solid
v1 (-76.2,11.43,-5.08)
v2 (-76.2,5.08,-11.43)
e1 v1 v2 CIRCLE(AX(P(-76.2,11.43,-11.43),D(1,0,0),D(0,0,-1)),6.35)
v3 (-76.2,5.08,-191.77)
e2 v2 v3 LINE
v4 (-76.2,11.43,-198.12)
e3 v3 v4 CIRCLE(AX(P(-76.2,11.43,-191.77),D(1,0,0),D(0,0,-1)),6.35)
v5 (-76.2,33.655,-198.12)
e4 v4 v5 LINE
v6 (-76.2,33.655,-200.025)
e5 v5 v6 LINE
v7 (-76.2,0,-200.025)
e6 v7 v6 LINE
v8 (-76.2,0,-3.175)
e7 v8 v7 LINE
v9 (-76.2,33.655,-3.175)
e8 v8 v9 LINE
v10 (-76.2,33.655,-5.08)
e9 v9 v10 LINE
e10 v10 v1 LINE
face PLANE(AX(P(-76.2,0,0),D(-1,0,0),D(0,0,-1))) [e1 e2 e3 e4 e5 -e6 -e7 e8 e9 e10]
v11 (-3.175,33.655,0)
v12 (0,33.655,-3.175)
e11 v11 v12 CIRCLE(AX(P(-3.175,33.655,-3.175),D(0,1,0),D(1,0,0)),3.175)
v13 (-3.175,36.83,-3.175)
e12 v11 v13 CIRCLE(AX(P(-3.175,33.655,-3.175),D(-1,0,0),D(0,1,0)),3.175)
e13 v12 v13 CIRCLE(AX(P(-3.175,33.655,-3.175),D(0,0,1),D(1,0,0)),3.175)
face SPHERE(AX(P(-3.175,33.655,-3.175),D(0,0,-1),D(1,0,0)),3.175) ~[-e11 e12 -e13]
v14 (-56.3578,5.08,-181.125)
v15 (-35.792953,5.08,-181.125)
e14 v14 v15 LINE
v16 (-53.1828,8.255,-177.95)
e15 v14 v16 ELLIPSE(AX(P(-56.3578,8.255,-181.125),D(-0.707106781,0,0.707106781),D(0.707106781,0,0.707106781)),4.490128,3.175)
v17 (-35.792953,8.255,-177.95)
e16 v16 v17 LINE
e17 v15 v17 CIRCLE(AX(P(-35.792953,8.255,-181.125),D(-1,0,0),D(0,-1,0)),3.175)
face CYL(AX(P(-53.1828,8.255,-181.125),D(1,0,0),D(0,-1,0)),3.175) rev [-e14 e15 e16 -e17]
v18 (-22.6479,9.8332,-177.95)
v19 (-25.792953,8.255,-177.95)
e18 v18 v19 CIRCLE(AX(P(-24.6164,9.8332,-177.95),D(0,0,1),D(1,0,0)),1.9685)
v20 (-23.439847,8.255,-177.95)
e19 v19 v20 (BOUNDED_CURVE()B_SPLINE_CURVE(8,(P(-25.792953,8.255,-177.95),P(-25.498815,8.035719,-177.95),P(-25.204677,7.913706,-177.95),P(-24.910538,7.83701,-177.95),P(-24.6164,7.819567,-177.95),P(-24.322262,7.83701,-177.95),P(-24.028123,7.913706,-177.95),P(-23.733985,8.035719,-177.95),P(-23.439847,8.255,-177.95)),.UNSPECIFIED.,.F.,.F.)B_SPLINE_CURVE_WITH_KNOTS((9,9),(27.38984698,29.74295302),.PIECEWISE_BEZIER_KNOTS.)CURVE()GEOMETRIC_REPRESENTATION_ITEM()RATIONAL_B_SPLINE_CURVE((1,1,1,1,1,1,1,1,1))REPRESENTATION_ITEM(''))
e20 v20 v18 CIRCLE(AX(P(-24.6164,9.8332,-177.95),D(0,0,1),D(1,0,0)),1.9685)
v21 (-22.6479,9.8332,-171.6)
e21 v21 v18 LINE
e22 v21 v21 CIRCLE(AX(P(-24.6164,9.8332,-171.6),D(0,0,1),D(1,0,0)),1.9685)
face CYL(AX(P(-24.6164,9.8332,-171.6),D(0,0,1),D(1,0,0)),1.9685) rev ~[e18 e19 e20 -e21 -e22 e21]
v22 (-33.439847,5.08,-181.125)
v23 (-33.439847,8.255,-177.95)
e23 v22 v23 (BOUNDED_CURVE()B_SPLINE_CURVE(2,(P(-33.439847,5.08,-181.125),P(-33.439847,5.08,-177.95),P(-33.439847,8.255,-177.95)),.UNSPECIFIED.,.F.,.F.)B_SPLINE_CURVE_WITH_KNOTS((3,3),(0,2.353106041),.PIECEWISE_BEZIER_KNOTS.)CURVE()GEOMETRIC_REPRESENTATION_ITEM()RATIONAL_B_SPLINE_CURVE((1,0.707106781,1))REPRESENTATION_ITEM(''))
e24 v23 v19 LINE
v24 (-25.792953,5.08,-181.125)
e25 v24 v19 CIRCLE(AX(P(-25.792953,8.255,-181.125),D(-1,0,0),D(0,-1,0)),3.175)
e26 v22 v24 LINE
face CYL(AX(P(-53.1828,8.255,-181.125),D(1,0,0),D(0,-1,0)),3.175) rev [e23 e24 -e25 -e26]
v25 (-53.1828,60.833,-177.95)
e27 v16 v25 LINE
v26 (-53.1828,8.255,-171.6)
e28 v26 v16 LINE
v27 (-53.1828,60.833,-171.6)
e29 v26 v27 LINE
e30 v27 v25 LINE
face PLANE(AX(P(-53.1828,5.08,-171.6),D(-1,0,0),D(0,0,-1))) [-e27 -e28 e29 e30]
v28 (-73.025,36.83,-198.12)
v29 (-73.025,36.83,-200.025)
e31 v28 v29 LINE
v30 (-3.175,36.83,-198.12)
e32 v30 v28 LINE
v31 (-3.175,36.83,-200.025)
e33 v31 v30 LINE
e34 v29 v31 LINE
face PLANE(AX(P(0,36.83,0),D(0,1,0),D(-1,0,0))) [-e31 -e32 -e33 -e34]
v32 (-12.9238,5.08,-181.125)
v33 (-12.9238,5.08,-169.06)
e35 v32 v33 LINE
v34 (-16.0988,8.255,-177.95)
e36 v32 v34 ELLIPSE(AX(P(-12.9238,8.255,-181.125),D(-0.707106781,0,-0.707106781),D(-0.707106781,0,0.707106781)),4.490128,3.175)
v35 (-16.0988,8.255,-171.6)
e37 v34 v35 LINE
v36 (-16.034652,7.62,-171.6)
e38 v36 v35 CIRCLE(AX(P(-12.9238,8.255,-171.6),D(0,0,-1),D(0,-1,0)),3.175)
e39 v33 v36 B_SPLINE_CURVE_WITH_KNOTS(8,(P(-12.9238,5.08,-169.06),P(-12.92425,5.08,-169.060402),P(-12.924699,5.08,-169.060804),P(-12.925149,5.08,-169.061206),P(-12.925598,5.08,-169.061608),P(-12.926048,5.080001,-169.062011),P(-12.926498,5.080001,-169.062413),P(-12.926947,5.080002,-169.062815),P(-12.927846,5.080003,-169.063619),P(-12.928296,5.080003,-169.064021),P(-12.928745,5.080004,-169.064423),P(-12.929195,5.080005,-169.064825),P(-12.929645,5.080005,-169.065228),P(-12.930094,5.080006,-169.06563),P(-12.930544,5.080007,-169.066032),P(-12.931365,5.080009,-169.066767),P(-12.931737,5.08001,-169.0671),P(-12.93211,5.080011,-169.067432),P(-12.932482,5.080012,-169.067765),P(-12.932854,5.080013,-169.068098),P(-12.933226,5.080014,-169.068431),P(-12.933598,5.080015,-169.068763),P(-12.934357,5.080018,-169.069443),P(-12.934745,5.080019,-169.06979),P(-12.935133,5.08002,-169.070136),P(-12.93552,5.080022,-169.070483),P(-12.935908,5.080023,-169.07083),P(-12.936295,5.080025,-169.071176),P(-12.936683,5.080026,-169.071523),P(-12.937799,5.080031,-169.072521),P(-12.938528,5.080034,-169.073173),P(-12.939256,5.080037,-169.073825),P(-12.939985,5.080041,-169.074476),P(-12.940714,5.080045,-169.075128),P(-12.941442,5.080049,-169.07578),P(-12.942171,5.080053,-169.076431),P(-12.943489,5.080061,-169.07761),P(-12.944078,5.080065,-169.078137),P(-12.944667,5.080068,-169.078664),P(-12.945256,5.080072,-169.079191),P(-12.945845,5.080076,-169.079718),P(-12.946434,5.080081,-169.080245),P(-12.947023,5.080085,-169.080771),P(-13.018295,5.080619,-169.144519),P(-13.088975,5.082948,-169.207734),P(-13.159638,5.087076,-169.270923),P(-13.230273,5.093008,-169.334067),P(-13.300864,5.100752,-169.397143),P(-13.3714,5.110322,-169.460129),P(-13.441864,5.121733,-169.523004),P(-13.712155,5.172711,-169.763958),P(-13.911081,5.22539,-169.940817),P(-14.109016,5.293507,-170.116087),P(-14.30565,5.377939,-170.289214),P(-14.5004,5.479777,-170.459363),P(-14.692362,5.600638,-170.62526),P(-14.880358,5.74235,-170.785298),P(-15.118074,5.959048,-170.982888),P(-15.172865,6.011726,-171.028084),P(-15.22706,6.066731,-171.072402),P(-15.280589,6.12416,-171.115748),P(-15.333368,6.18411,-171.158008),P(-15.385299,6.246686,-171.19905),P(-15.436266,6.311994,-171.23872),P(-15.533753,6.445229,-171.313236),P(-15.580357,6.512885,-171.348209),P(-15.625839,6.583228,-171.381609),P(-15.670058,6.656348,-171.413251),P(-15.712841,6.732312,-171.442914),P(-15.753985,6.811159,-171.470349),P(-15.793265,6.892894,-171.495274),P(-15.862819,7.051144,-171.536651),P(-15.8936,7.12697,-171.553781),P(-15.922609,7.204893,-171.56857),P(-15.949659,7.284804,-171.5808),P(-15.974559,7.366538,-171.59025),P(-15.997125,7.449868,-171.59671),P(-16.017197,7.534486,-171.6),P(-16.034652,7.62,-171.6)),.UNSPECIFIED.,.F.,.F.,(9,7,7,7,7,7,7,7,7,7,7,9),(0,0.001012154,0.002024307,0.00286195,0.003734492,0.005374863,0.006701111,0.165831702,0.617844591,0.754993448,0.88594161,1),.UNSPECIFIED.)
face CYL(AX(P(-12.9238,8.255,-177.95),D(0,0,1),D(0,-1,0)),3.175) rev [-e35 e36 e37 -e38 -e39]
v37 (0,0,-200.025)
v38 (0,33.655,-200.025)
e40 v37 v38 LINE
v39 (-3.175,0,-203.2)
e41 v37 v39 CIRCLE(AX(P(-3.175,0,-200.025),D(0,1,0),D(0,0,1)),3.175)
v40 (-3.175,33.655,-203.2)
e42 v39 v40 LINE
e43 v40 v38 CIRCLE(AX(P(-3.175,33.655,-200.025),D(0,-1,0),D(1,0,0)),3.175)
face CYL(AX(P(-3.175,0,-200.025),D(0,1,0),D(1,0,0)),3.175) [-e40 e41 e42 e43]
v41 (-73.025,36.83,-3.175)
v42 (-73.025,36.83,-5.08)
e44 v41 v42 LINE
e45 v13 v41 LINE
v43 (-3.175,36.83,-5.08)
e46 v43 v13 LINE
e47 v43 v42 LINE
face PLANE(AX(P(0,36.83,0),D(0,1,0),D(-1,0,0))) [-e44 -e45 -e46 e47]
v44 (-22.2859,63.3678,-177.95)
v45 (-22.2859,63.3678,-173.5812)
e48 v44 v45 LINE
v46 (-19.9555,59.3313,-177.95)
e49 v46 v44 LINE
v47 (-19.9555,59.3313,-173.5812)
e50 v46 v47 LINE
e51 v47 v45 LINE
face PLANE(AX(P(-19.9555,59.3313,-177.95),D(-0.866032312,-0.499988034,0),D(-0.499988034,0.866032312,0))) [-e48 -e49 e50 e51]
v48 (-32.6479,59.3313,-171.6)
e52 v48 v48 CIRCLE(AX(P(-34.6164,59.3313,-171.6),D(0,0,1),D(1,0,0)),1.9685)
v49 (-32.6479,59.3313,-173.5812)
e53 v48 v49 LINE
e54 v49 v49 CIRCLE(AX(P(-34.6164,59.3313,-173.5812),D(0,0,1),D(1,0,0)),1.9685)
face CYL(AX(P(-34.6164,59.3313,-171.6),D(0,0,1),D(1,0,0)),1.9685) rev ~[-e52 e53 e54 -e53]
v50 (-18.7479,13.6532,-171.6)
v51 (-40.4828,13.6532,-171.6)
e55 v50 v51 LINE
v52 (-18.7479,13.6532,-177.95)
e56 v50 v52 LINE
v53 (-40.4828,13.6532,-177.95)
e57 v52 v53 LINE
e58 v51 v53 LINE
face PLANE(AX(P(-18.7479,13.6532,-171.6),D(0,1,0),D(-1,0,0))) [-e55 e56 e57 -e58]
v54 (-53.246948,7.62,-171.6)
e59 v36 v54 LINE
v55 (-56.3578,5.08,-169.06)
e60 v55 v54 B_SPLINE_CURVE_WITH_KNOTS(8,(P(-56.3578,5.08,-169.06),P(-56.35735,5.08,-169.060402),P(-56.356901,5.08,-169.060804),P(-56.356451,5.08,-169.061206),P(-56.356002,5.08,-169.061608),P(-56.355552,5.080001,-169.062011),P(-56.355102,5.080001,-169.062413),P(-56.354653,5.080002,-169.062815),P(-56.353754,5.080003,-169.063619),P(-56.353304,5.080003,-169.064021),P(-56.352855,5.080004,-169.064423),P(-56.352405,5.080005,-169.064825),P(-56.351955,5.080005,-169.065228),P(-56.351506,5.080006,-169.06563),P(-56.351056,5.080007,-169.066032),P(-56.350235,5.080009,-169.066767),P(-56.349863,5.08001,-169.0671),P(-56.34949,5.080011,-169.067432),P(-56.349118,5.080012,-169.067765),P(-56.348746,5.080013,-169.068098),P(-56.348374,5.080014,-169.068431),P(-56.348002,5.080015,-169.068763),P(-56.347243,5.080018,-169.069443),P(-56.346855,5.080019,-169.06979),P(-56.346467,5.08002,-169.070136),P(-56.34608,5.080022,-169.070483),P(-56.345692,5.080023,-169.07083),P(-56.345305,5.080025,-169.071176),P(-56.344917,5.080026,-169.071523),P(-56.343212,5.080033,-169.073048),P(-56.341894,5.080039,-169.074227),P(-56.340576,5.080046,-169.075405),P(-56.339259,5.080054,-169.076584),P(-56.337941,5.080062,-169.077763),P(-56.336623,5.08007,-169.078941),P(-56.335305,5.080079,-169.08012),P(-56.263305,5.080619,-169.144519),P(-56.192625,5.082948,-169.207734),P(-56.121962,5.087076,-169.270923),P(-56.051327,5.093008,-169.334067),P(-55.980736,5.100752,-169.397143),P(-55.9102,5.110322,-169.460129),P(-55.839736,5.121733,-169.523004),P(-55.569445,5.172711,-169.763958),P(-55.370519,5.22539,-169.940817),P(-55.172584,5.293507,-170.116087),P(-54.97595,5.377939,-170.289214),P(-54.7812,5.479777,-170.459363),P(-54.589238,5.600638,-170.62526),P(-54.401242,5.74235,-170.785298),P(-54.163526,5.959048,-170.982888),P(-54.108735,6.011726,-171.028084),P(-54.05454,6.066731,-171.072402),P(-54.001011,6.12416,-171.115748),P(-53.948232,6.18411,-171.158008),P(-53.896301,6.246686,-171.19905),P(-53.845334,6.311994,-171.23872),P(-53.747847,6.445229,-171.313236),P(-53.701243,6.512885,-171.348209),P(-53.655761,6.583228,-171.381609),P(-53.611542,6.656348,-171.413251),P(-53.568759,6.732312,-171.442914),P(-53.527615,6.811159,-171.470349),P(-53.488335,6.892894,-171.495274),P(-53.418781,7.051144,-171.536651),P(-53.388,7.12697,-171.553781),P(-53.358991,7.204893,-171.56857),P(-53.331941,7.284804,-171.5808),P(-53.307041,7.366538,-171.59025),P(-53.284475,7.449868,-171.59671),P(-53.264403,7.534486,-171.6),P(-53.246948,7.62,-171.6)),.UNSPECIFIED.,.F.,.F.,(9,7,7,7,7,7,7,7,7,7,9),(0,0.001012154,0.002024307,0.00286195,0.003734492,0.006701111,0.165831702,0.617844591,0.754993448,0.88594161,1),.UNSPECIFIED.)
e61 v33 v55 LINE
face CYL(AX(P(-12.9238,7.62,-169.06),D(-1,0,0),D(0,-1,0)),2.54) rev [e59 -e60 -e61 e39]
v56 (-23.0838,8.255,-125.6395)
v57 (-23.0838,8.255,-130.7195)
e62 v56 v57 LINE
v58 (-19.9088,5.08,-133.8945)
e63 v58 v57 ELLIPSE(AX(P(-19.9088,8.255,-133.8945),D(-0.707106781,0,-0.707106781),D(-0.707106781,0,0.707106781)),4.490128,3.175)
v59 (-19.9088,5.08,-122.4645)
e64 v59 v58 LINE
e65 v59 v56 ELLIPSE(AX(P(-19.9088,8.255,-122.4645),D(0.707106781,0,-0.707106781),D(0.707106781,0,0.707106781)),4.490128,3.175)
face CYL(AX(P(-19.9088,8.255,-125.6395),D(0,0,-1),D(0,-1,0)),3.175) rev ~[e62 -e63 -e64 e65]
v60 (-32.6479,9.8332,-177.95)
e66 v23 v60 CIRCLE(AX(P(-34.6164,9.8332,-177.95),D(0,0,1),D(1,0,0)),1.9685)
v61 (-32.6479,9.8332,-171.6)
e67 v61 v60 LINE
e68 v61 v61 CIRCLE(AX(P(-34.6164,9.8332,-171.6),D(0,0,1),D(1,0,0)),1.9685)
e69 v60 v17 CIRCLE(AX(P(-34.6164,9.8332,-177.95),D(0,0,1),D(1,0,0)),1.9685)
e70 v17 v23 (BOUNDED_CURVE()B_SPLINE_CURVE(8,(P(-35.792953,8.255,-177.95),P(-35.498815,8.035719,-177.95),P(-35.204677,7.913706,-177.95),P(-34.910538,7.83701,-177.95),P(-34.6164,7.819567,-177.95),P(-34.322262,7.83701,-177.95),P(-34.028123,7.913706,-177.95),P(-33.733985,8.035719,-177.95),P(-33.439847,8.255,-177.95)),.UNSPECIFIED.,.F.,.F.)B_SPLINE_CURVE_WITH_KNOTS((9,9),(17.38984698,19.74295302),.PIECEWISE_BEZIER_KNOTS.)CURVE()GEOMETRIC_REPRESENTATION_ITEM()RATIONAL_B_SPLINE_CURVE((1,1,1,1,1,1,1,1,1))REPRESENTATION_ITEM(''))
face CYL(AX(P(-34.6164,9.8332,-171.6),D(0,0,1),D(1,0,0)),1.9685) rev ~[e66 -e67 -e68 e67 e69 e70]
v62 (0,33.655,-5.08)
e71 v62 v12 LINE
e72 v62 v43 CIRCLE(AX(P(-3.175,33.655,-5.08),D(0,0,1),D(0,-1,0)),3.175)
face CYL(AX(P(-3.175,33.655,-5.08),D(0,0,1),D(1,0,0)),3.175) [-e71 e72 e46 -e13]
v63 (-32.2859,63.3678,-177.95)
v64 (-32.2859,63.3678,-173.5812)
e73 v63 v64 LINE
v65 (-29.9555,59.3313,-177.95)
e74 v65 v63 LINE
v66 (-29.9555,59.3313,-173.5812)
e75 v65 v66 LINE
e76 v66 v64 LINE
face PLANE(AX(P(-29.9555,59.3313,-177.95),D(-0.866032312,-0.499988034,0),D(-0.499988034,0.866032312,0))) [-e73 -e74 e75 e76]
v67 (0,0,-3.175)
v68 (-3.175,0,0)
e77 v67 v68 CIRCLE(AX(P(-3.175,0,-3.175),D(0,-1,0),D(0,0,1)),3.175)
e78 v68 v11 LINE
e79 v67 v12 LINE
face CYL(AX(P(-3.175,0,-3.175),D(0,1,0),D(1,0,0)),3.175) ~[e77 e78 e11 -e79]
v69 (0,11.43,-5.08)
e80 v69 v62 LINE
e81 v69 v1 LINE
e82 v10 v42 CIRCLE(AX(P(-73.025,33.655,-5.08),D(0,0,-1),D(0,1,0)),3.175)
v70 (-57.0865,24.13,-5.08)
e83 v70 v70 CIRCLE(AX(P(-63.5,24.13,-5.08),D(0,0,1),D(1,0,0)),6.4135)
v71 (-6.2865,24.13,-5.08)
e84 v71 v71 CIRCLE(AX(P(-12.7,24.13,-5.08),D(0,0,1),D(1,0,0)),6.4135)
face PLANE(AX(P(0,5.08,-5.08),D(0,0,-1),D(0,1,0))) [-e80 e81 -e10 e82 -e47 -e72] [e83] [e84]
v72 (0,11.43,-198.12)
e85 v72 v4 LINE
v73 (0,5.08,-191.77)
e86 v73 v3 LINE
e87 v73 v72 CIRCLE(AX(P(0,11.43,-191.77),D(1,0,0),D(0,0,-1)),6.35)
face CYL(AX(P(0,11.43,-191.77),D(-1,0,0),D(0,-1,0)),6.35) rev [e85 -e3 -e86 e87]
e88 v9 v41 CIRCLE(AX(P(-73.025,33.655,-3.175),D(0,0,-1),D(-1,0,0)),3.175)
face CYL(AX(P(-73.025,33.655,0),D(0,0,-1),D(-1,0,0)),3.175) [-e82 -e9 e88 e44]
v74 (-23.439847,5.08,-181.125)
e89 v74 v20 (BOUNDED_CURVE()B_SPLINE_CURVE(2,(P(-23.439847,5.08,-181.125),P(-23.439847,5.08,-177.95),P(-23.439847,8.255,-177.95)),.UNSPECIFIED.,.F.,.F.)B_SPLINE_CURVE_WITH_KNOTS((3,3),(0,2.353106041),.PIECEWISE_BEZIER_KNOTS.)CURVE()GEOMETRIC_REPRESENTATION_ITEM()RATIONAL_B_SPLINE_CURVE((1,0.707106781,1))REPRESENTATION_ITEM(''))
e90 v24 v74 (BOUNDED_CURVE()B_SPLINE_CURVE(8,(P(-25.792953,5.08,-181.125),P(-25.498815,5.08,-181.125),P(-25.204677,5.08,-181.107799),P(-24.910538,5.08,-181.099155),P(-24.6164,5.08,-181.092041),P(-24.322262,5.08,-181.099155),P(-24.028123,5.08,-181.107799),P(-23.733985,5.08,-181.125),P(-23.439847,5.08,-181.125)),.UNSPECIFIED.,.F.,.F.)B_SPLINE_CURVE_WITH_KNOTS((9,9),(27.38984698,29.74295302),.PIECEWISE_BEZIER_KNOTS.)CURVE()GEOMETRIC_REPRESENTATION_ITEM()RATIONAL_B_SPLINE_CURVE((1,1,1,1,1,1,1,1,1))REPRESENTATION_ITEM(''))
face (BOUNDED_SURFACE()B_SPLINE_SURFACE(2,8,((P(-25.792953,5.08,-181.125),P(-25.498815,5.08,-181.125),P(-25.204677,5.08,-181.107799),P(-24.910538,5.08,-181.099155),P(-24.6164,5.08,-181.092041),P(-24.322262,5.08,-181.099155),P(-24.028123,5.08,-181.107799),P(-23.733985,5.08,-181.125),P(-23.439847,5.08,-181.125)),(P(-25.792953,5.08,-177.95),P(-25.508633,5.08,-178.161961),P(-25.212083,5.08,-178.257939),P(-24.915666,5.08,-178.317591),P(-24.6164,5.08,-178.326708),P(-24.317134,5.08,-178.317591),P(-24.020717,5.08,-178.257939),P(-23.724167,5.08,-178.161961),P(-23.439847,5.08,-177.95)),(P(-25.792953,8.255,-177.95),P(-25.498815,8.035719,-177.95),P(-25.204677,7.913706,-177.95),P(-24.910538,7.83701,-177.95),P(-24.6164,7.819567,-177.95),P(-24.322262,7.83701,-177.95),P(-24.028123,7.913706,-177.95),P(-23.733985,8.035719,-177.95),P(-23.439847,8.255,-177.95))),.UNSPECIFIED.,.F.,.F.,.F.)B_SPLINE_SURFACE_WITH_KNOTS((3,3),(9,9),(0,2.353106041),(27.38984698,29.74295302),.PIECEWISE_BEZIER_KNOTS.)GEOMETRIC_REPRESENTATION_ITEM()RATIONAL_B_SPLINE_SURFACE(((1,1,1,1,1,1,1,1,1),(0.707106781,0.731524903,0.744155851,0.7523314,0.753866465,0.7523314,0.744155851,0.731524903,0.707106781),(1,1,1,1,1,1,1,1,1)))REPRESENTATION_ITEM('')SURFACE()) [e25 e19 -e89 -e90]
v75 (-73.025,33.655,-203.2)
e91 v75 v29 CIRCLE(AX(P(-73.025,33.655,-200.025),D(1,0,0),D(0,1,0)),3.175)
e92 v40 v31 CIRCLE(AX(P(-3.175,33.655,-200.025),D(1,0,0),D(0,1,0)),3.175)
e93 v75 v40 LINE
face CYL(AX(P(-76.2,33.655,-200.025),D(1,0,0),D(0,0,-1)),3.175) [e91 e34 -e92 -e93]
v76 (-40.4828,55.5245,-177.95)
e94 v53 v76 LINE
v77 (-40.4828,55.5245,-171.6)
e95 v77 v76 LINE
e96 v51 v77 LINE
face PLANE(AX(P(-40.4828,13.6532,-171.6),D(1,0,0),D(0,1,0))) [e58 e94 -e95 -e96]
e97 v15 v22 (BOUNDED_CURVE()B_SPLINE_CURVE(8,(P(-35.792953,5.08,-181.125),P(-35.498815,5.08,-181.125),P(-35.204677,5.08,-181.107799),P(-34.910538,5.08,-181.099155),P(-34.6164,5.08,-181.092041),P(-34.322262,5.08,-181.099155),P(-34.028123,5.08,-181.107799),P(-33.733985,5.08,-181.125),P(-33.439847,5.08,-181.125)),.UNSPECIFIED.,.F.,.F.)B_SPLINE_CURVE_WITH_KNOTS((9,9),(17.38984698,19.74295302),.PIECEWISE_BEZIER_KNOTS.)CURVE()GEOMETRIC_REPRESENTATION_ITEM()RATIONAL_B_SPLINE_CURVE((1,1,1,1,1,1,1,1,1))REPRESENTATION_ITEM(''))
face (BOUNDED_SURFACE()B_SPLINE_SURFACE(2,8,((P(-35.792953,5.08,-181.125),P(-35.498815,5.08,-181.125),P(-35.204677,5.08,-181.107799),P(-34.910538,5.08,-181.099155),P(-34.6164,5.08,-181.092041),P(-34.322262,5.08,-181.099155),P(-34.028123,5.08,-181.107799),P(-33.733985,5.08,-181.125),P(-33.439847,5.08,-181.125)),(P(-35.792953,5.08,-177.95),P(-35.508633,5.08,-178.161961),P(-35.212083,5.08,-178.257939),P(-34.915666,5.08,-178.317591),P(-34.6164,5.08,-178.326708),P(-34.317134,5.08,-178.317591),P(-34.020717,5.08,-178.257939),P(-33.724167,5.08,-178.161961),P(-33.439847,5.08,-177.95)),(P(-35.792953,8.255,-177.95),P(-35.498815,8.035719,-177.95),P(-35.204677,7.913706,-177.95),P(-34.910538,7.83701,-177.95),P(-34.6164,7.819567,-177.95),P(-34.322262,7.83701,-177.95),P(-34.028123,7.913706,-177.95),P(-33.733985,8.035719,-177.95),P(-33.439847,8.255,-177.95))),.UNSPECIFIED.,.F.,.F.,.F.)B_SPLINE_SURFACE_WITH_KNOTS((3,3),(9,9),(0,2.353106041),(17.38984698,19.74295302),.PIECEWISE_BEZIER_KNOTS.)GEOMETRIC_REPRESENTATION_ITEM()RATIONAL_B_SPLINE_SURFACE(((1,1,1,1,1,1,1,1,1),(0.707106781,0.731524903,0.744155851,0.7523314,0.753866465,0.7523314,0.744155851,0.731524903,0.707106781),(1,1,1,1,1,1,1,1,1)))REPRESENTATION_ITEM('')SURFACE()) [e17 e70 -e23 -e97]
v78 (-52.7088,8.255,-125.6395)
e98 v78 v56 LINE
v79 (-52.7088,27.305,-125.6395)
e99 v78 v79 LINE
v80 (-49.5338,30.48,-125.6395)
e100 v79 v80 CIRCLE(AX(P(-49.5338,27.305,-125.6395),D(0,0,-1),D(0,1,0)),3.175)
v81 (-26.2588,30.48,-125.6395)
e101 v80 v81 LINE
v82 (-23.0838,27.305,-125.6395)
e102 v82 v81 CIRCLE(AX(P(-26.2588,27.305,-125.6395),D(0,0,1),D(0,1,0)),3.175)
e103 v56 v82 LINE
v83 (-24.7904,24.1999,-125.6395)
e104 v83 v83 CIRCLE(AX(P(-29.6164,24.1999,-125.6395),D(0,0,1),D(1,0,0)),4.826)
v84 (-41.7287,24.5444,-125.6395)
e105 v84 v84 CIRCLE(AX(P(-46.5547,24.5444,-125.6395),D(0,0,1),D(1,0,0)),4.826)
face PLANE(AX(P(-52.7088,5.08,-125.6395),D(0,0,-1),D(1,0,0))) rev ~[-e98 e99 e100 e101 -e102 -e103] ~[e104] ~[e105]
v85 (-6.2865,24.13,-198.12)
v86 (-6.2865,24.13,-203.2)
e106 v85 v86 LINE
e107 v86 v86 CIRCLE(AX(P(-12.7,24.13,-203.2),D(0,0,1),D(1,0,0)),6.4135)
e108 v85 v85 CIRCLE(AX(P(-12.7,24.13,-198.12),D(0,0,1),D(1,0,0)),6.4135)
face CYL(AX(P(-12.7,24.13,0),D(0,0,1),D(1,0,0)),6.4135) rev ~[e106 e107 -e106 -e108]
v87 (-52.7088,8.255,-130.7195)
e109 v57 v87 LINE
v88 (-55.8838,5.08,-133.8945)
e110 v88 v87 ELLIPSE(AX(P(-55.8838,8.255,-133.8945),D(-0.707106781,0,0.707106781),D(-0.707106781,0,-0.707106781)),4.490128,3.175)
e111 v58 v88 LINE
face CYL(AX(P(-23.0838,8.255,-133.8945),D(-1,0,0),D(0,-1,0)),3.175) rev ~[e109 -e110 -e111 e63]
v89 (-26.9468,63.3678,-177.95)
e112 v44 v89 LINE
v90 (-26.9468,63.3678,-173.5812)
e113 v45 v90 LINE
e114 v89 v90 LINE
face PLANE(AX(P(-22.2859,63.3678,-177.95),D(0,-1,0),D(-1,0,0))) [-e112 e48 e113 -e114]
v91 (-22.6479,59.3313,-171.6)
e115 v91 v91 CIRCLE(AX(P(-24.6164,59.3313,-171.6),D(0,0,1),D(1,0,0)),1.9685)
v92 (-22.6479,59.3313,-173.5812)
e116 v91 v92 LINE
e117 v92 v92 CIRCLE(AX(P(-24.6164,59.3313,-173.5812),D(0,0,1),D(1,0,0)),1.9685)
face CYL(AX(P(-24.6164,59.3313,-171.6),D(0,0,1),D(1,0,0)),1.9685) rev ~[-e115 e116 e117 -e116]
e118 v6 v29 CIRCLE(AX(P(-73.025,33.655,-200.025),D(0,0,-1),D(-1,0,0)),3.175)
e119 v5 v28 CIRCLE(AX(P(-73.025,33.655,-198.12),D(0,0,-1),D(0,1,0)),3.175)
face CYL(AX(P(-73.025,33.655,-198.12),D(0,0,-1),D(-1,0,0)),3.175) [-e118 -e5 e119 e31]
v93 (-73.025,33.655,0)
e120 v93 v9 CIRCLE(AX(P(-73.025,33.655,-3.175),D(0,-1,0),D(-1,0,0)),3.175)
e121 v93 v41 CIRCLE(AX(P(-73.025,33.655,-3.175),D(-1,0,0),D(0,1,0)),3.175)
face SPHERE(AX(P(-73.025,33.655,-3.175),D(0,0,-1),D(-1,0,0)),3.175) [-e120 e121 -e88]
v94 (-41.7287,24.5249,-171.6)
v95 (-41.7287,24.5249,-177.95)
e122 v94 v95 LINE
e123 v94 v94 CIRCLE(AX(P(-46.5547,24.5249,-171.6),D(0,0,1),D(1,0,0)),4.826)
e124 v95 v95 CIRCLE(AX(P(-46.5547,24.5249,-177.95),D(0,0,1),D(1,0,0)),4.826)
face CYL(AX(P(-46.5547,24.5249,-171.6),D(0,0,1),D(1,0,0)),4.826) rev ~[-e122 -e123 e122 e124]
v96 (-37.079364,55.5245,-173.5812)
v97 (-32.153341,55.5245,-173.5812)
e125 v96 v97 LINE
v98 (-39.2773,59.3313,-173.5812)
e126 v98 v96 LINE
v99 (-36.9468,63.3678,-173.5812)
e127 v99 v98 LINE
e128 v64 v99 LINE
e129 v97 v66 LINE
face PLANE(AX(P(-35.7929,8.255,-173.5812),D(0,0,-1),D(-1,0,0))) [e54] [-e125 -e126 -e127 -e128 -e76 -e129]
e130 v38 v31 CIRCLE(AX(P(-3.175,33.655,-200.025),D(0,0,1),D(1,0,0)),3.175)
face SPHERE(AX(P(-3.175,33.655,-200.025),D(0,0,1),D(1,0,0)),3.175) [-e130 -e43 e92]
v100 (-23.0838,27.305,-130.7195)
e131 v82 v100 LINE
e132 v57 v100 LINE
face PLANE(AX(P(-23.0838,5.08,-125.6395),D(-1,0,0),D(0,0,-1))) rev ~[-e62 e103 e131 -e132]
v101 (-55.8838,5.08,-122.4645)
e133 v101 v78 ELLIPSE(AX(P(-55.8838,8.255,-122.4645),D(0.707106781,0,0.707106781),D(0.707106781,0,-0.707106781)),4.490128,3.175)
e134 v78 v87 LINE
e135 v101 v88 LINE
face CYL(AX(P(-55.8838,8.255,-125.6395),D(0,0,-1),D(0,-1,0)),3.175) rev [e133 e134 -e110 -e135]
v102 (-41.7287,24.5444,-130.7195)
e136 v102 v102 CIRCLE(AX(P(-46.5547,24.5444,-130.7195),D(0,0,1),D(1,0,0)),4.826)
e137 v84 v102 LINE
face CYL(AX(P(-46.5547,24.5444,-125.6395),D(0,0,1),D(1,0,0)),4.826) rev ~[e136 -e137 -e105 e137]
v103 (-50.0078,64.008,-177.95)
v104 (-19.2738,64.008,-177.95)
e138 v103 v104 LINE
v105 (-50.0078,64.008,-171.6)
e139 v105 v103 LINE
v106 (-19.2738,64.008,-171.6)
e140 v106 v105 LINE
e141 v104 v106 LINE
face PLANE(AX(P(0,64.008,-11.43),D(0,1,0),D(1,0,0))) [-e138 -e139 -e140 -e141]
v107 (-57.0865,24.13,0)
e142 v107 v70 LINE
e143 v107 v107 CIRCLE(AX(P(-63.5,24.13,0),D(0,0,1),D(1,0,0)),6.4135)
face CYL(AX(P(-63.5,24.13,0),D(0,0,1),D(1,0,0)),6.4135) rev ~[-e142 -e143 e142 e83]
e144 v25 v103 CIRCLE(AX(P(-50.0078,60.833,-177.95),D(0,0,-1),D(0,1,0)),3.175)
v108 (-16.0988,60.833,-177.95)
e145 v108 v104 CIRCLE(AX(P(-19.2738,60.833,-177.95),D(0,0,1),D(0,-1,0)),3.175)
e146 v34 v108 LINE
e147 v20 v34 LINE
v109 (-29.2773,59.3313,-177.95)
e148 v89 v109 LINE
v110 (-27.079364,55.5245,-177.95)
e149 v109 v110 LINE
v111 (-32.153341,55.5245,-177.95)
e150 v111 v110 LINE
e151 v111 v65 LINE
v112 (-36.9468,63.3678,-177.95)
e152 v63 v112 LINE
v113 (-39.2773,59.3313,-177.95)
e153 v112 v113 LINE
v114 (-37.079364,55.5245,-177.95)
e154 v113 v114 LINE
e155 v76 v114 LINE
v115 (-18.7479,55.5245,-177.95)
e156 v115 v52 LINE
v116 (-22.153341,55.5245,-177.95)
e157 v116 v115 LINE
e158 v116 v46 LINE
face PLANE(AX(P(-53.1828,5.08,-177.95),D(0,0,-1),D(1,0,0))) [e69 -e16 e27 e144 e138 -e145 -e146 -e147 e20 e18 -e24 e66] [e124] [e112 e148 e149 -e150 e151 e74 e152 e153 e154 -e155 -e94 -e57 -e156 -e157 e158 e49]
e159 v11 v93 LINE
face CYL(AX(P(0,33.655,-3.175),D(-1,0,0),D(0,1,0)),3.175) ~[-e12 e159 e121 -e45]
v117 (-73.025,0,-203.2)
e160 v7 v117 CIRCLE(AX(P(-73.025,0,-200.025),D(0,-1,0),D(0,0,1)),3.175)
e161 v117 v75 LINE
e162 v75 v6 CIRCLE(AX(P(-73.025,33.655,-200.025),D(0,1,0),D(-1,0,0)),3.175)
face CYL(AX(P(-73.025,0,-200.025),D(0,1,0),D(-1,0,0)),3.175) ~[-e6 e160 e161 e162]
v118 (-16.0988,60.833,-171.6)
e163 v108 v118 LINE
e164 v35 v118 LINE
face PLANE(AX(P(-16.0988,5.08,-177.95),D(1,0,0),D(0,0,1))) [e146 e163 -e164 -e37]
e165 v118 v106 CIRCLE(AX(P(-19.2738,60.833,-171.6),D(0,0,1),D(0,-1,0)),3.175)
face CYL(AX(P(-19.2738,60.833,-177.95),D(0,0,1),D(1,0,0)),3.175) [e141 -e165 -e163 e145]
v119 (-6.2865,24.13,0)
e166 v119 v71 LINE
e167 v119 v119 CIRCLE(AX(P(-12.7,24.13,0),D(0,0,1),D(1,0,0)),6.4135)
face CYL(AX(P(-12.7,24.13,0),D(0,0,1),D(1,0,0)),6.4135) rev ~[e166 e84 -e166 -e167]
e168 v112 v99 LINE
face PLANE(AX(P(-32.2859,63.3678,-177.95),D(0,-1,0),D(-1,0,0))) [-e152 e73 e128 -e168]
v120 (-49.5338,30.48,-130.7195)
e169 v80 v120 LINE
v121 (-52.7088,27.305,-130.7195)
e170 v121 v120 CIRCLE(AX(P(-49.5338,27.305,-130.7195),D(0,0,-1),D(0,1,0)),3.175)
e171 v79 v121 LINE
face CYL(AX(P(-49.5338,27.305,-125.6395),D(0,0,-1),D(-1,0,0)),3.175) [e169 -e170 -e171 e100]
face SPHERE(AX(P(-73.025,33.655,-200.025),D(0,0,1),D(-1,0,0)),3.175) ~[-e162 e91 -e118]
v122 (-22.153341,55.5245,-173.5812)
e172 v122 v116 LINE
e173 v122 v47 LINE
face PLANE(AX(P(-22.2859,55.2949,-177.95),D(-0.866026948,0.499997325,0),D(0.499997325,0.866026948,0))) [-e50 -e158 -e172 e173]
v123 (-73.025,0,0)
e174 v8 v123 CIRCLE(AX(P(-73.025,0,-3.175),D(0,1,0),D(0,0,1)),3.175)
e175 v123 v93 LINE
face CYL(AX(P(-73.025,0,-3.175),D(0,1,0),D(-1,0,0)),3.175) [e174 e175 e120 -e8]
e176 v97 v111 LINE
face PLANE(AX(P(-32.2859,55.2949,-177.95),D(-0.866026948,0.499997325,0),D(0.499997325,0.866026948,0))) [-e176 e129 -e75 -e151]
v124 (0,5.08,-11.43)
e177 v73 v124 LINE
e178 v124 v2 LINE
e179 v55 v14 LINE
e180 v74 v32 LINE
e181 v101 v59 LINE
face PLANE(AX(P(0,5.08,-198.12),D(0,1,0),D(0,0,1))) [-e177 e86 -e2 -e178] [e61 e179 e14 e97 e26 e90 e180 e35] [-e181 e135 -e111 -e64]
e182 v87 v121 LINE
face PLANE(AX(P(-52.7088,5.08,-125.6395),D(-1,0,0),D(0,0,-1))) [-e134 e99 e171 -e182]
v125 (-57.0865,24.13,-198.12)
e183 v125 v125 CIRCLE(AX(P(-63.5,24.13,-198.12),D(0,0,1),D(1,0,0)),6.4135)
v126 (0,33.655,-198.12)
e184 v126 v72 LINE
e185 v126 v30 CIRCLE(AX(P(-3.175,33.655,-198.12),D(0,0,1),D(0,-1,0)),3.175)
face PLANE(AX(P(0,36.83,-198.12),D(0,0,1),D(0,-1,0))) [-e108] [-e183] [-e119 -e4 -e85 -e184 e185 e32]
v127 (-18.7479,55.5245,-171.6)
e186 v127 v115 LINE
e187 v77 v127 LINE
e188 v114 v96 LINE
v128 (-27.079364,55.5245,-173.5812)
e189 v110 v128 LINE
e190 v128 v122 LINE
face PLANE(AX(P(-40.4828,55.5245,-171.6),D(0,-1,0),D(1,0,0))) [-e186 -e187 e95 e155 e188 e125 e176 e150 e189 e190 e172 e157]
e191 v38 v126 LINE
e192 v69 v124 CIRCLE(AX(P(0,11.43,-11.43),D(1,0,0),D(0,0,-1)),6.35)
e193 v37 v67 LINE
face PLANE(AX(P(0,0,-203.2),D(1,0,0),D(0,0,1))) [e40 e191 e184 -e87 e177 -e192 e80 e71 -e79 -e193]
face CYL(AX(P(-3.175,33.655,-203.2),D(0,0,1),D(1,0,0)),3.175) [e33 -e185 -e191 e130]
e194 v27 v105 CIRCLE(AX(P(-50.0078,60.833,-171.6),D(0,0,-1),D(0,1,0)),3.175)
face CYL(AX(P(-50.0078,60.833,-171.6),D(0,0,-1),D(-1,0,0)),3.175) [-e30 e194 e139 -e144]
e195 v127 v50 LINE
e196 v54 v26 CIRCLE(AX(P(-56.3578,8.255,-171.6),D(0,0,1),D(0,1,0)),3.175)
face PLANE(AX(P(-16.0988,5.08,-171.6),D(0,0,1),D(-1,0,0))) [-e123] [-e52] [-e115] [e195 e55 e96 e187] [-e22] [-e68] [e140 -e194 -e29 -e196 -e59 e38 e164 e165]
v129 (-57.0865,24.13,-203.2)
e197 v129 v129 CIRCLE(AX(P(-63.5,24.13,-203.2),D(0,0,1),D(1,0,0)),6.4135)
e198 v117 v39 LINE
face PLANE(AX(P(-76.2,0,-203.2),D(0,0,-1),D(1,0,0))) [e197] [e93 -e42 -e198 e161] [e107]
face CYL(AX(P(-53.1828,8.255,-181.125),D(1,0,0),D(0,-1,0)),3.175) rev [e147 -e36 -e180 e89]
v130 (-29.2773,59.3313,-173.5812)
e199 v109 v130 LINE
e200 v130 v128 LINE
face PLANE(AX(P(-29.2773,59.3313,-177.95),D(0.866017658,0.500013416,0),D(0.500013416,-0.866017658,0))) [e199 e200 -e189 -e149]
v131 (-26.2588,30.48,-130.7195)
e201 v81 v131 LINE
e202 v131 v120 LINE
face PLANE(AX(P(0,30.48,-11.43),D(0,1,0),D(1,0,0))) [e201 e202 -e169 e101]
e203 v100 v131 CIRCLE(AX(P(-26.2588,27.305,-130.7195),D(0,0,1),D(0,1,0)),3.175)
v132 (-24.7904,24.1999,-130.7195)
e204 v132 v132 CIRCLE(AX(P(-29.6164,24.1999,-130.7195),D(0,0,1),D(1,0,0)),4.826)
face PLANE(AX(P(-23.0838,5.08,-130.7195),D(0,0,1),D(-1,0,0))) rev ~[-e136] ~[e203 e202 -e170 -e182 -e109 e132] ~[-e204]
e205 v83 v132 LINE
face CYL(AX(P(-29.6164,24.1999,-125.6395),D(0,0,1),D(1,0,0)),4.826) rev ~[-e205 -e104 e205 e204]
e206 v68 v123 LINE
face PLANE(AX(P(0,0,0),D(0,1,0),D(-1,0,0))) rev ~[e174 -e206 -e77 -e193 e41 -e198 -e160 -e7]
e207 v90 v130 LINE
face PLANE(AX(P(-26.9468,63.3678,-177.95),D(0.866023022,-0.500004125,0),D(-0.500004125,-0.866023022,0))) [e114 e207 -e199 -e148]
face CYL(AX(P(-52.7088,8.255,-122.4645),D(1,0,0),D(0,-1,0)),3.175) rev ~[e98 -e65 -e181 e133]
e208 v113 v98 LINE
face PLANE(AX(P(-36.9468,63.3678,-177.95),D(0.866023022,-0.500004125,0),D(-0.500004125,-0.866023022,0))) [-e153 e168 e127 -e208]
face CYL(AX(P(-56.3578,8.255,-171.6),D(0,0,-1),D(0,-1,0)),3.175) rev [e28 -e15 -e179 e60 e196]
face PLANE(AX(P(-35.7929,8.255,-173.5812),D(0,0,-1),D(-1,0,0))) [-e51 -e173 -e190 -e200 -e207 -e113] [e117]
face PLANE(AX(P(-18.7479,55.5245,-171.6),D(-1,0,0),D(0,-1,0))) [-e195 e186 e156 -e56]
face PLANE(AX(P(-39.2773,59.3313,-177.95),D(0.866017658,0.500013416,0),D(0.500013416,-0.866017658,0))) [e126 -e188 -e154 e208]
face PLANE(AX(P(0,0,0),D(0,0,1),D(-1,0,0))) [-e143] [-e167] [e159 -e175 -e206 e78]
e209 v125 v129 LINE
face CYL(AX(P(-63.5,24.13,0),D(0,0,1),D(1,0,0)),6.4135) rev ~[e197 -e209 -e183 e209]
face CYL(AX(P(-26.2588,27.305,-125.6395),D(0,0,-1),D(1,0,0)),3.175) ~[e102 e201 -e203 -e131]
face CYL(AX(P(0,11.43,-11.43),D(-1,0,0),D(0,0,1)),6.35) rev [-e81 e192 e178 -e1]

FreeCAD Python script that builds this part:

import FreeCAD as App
import Part
import Sketcher
Q = App.Units.Quantity


def edges_at(feature, points):
    """Names of the edges that pass closest to the given points."""
    edges = feature.Shape.Edges
    near = lambda p: min(range(len(edges)), key=lambda i: edges[i].distToShape(Part.Vertex(*p))[0])
    return sorted({f"Edge{near(p) + 1}" for p in points})

doc = App.newDocument("Part")
body = doc.addObject("PartDesign::Body", "Body")

# Sketch on XZ plane
sketch1 = body.newObject("Sketcher::SketchObject", "Sketch")
sketch1.AttachmentSupport = (doc.getObject("XZ_Plane"), [""])
sketch1.MapMode = "FlatFace"
sketch1.addGeometry(Part.LineSegment(App.Vector(-76, 0, 0), App.Vector(0, 0, 0)), False)
sketch1.addGeometry(Part.LineSegment(App.Vector(0, 0, 0), App.Vector(0, -203, 0)), False)
sketch1.addGeometry(Part.LineSegment(App.Vector(0, -203, 0), App.Vector(-76, -203, 0)), False)
sketch1.addGeometry(Part.LineSegment(App.Vector(-76, -203, 0), App.Vector(-76, 0, 0)), False)
sketch1.addConstraint(Sketcher.Constraint("Coincident", 0, 2, 1, 1))
sketch1.addConstraint(Sketcher.Constraint("Coincident", 1, 2, 2, 1))
sketch1.addConstraint(Sketcher.Constraint("Coincident", 2, 2, 3, 1))
sketch1.addConstraint(Sketcher.Constraint("Coincident", 3, 2, 0, 1))
sketch1.addConstraint(Sketcher.Constraint("Horizontal", 0))
sketch1.addConstraint(Sketcher.Constraint("Vertical", 1))
sketch1.addConstraint(Sketcher.Constraint("Horizontal", 2))
sketch1.addConstraint(Sketcher.Constraint("Vertical", 3))
sketch1.addConstraint(Sketcher.Constraint("Coincident", 0, 2, -1, 1))
sketch1.addConstraint(Sketcher.Constraint("DistanceX", 0, 1, 0, 2, Q("3 in")))
sketch1.addConstraint(Sketcher.Constraint("DistanceY", 1, 2, 1, 1, Q("8 in")))
pad1 = body.newObject("PartDesign::Pad", "Pad")
pad1.Profile = sketch1
pad1.Length = Q("1.45 in")
pad1.Reversed = True

# Sketch on XY plane
sketch2 = body.newObject("Sketcher::SketchObject", "Sketch001")
sketch2.AttachmentSupport = (doc.getObject("XY_Plane"), [""])
sketch2.MapMode = "FlatFace"
sketch2.addGeometry(Part.Circle(App.Vector(-13, 24, 0), App.Vector(0, 0, 1), 6), False)
sketch2.addGeometry(Part.Circle(App.Vector(-64, 24, 0), App.Vector(0, 0, 1), 6), False)
sketch2.addConstraint(Sketcher.Constraint("Equal", 0, 1))
sketch2.addConstraint(Sketcher.Constraint("Horizontal", 0, 3, 1, 3))
sketch2.addConstraint(Sketcher.Constraint("Diameter", 0, Q("0.505 in")))
sketch2.addConstraint(Sketcher.Constraint("DistanceX", 1, 3, 0, 3, Q("2 in")))
sketch2.addConstraint(Sketcher.Constraint("DistanceX", 0, 3, -1, 1, Q("0.5 in")))
sketch2.addConstraint(Sketcher.Constraint("DistanceY", -1, 1, 0, 3, Q("0.95 in")))
pocket1 = body.newObject("PartDesign::Pocket", "Pocket")
pocket1.Profile = sketch2
pocket1.Type = "ThroughAll"

# Sketch on YZ plane
sketch3 = body.newObject("Sketcher::SketchObject", "Sketch002")
sketch3.AttachmentSupport = (doc.getObject("YZ_Plane"), [""])
sketch3.MapMode = "FlatFace"
sketch3.addGeometry(Part.LineSegment(App.Vector(37, -198, 0), App.Vector(37, -5, 0)), False)
sketch3.addGeometry(Part.LineSegment(App.Vector(37, -5, 0), App.Vector(5, -5, 0)), False)
sketch3.addGeometry(Part.LineSegment(App.Vector(5, -5, 0), App.Vector(5, -198, 0)), False)
sketch3.addGeometry(Part.LineSegment(App.Vector(5, -198, 0), App.Vector(37, -198, 0)), False)
sketch3.addConstraint(Sketcher.Constraint("Coincident", 0, 2, 1, 1))
sketch3.addConstraint(Sketcher.Constraint("Coincident", 1, 2, 2, 1))
sketch3.addConstraint(Sketcher.Constraint("Coincident", 2, 2, 3, 1))
sketch3.addConstraint(Sketcher.Constraint("Coincident", 3, 2, 0, 1))
sketch3.addConstraint(Sketcher.Constraint("Vertical", 0))
sketch3.addConstraint(Sketcher.Constraint("Horizontal", 1))
sketch3.addConstraint(Sketcher.Constraint("Vertical", 2))
sketch3.addConstraint(Sketcher.Constraint("Horizontal", 3))
sketch3.addConstraint(Sketcher.Constraint("DistanceY", 0, 2, -1, 1, Q("0.2 in")))
sketch3.addConstraint(Sketcher.Constraint("DistanceX", -1, 1, 1, 2, Q("0.2 in")))
sketch3.addConstraint(Sketcher.Constraint("DistanceY", 0, 1, 0, 2, Q("7.6 in")))
sketch3.addConstraint(Sketcher.Constraint("DistanceX", 1, 2, 1, 1, Q("1.25 in")))
pocket2 = body.newObject("PartDesign::Pocket", "Pocket001")
pocket2.Profile = sketch3
pocket2.Type = "ThroughAll"
doc.recompute()

fillet = body.newObject("PartDesign::Fillet", "Fillet")
fillet.Base = (pocket2, edges_at(pocket2, [(-38.1, 5.08, -198.12), (-38.1, 5.08, -5.08)]))
fillet.Radius = Q("0.25 in")

# Sketch on XZ plane
sketch4 = body.newObject("Sketcher::SketchObject", "Sketch003")
sketch4.AttachmentSupport = (doc.getObject("XZ_Plane"), [""])
sketch4.MapMode = "FlatFace"
sketch4.AttachmentOffset = App.Placement(App.Vector(0, 0, -0.2 * 25.4), App.Rotation())
sketch4.addGeometry(Part.LineSegment(App.Vector(-23, -126, 0), App.Vector(-23, -131, 0)), False)
sketch4.addGeometry(Part.LineSegment(App.Vector(-23, -131, 0), App.Vector(-53, -131, 0)), False)
sketch4.addGeometry(Part.LineSegment(App.Vector(-53, -131, 0), App.Vector(-53, -126, 0)), False)
sketch4.addGeometry(Part.LineSegment(App.Vector(-53, -126, 0), App.Vector(-23, -126, 0)), False)
sketch4.addConstraint(Sketcher.Constraint("Coincident", 0, 2, 1, 1))
sketch4.addConstraint(Sketcher.Constraint("Coincident", 1, 2, 2, 1))
sketch4.addConstraint(Sketcher.Constraint("Coincident", 2, 2, 3, 1))
sketch4.addConstraint(Sketcher.Constraint("Coincident", 3, 2, 0, 1))
sketch4.addConstraint(Sketcher.Constraint("Vertical", 0))
sketch4.addConstraint(Sketcher.Constraint("Horizontal", 1))
sketch4.addConstraint(Sketcher.Constraint("Vertical", 2))
sketch4.addConstraint(Sketcher.Constraint("Horizontal", 3))
sketch4.addConstraint(Sketcher.Constraint("DistanceY", 0, 2, 0, 1, Q("0.2 in")))
sketch4.addConstraint(Sketcher.Constraint("DistanceX", 1, 2, 1, 1, 29.625))
sketch4.addConstraint(Sketcher.Constraint("DistanceX", 0, 2, -1, 1, Q("0.9088 in")))
sketch4.addConstraint(Sketcher.Constraint("DistanceY", 0, 2, -1, 1, 130.7195))
pad2 = body.newObject("PartDesign::Pad", "Pad001")
pad2.Profile = sketch4
pad2.Length = Q("1 in")
pad2.Reversed = True

# Sketch on XY plane
sketch5 = body.newObject("Sketcher::SketchObject", "Sketch004")
sketch5.AttachmentSupport = (doc.getObject("XY_Plane"), [""])
sketch5.MapMode = "FlatFace"
sketch5.AttachmentOffset = App.Placement(App.Vector(0, 0, -125.6395), App.Rotation())
sketch5.addGeometry(Part.Circle(App.Vector(-46.6, 24.5, 0), App.Vector(0, 0, 1), 4.8), False)
sketch5.addGeometry(Part.Circle(App.Vector(-29.6, 24.2, 0), App.Vector(0, 0, 1), 4.8), False)
sketch5.addConstraint(Sketcher.Constraint("Equal", 0, 1))
sketch5.addConstraint(Sketcher.Constraint("Diameter", 0, Q("0.38 in")))
sketch5.addConstraint(Sketcher.Constraint("DistanceX", 1, 3, -1, 1, Q("1.166 in")))
sketch5.addConstraint(Sketcher.Constraint("DistanceX", 0, 3, -1, 1, 46.5547))
sketch5.addConstraint(Sketcher.Constraint("DistanceY", -1, 1, 0, 3, 24.5444))
sketch5.addConstraint(Sketcher.Constraint("DistanceY", -1, 1, 1, 3, 24.2))
pocket3 = body.newObject("PartDesign::Pocket", "Pocket002")
pocket3.Profile = sketch5
pocket3.Length = Q("0.25 in")
doc.recompute()

fillet2 = body.newObject("PartDesign::Fillet", "Fillet001")
fillet2.Base = (pocket3, edges_at(pocket3, [
    (-37.896, 5.08, -125.639),
    (-37.896, 5.08, -130.72),
    (-23.084, 5.08, -128.179),
    (-52.709, 5.08, -128.179),
]))
fillet2.Radius = Q("0.125 in")

# Sketch on XZ plane
sketch6 = body.newObject("Sketcher::SketchObject", "Sketch005")
sketch6.AttachmentSupport = (doc.getObject("XZ_Plane"), [""])
sketch6.MapMode = "FlatFace"
sketch6.AttachmentOffset = App.Placement(App.Vector(0, 0, -0.2 * 25.4), App.Rotation())
sketch6.addGeometry(Part.LineSegment(App.Vector(-16, -178, 0), App.Vector(-53, -178, 0)), False)
sketch6.addGeometry(Part.LineSegment(App.Vector(-53, -178, 0), App.Vector(-53, -172, 0)), False)
sketch6.addGeometry(Part.LineSegment(App.Vector(-53, -172, 0), App.Vector(-16, -172, 0)), False)
sketch6.addGeometry(Part.LineSegment(App.Vector(-16, -172, 0), App.Vector(-16, -178, 0)), False)
sketch6.addConstraint(Sketcher.Constraint("Coincident", 0, 2, 1, 1))
sketch6.addConstraint(Sketcher.Constraint("Coincident", 1, 2, 2, 1))
sketch6.addConstraint(Sketcher.Constraint("Coincident", 2, 2, 3, 1))
sketch6.addConstraint(Sketcher.Constraint("Coincident", 3, 2, 0, 1))
sketch6.addConstraint(Sketcher.Constraint("Horizontal", 0))
sketch6.addConstraint(Sketcher.Constraint("Vertical", 1))
sketch6.addConstraint(Sketcher.Constraint("Horizontal", 2))
sketch6.addConstraint(Sketcher.Constraint("Vertical", 3))
sketch6.addConstraint(Sketcher.Constraint("DistanceX", 0, 2, 0, 1, Q("1.46 in")))
sketch6.addConstraint(Sketcher.Constraint("DistanceY", 1, 1, 1, 2, Q("0.25 in")))
sketch6.addConstraint(Sketcher.Constraint("DistanceX", 0, 2, -1, 1, Q("2.0938 in")))
sketch6.addConstraint(Sketcher.Constraint("DistanceY", 0, 2, -1, 1, Q("7.0059 in")))
pad3 = body.newObject("PartDesign::Pad", "Pad002")
pad3.Profile = sketch6
pad3.Length = Q("2.32 in")
pad3.Reversed = True

# Sketch on XY plane
sketch7 = body.newObject("Sketcher::SketchObject", "Sketch006")
sketch7.AttachmentSupport = (doc.getObject("XY_Plane"), [""])
sketch7.MapMode = "FlatFace"
sketch7.AttachmentOffset = App.Placement(App.Vector(0, 0, -6.7559055 * 25.4), App.Rotation())
sketch7.addGeometry(Part.Circle(App.Vector(-24.6, 59.3, 0), App.Vector(0, 0, 1), 2), False)
sketch7.addGeometry(Part.Circle(App.Vector(-34.6, 59.3, 0), App.Vector(0, 0, 1), 2), False)
sketch7.addGeometry(Part.Circle(App.Vector(-34.6, 9.8, 0), App.Vector(0, 0, 1), 2), False)
sketch7.addGeometry(Part.Circle(App.Vector(-24.6, 9.8, 0), App.Vector(0, 0, 1), 2), False)
sketch7.addGeometry(Part.LineSegment(App.Vector(-40.5, 55.5, 0), App.Vector(-40.5, 13.7, 0)), False)
sketch7.addGeometry(Part.LineSegment(App.Vector(-40.5, 13.7, 0), App.Vector(-18.7, 13.7, 0)), False)
sketch7.addGeometry(Part.LineSegment(App.Vector(-18.7, 13.7, 0), App.Vector(-18.7, 55.5, 0)), False)
sketch7.addGeometry(Part.LineSegment(App.Vector(-18.7, 55.5, 0), App.Vector(-40.5, 55.5, 0)), False)
sketch7.addGeometry(Part.Circle(App.Vector(-46.6, 24.5, 0), App.Vector(0, 0, 1), 4.8), False)
sketch7.addConstraint(Sketcher.Constraint("Coincident", 4, 2, 5, 1))
sketch7.addConstraint(Sketcher.Constraint("Coincident", 5, 2, 6, 1))
sketch7.addConstraint(Sketcher.Constraint("Coincident", 6, 2, 7, 1))
sketch7.addConstraint(Sketcher.Constraint("Coincident", 7, 2, 4, 1))
sketch7.addConstraint(Sketcher.Constraint("Vertical", 4))
sketch7.addConstraint(Sketcher.Constraint("Horizontal", 5))
sketch7.addConstraint(Sketcher.Constraint("Vertical", 6))
sketch7.addConstraint(Sketcher.Constraint("Horizontal", 7))
sketch7.addConstraint(Sketcher.Constraint("Equal", 0, 1))
sketch7.addConstraint(Sketcher.Constraint("Equal", 1, 2))
sketch7.addConstraint(Sketcher.Constraint("Equal", 2, 3))
sketch7.addConstraint(Sketcher.Constraint("Horizontal", 0, 3, 1, 3))
sketch7.addConstraint(Sketcher.Constraint("Horizontal", 2, 3, 3, 3))
sketch7.addConstraint(Sketcher.Constraint("Vertical", 1, 3, 2, 3))
sketch7.addConstraint(Sketcher.Constraint("Vertical", 0, 3, 3, 3))
sketch7.addConstraint(Sketcher.Constraint("Diameter", 8, Q("0.38 in")))
sketch7.addConstraint(Sketcher.Constraint("Diameter", 0, Q("0.155 in")))
sketch7.addConstraint(Sketcher.Constraint("DistanceX", 8, 3, 2, 3, Q("0.47 in")))
sketch7.addConstraint(Sketcher.Constraint("DistanceX", 5, 1, 5, 2, Q("0.8557 in")))
sketch7.addConstraint(Sketcher.Constraint("DistanceY", -1, 1, 6, 2, Q("2.186 in")))
sketch7.addConstraint(Sketcher.Constraint("DistanceY", 4, 2, 4, 1, 41.8713))
sketch7.addConstraint(Sketcher.Constraint("DistanceX", 4, 2, -1, 1, Q("1.5938 in")))
sketch7.addConstraint(Sketcher.Constraint("DistanceX", 1, 3, 0, 3, Q("0.3937 in")))
sketch7.addConstraint(Sketcher.Constraint("DistanceY", 2, 3, 4, 2, Q("0.1504 in")))
sketch7.addConstraint(Sketcher.Constraint("DistanceX", 0, 3, -1, 1, 24.6164))
sketch7.addConstraint(Sketcher.Constraint("DistanceY", -1, 1, 0, 3, 59.3313))
sketch7.addConstraint(Sketcher.Constraint("DistanceY", -1, 1, 8, 3, 24.525))
pocket4 = body.newObject("PartDesign::Pocket", "Pocket003")
pocket4.Profile = sketch7
pocket4.Length = Q("0.25 in")
doc.recompute()

fillet3 = body.newObject("PartDesign::Fillet", "Fillet002")
fillet3.Base = (pocket4, edges_at(pocket4, [(-16.099, 5.08, -174.775), (-34.641, 5.08, -177.95), (-53.183, 5.08, -174.775)]))
fillet3.Radius = Q("0.125 in")
doc.recompute()

fillet4 = body.newObject("PartDesign::Fillet", "Fillet003")
fillet4.Base = (fillet3, edges_at(fillet3, [(-34.641, 5.08, -171.6)]))
fillet4.Radius = Q("0.1 in")
doc.recompute()

fillet5 = body.newObject("PartDesign::Fillet", "Fillet004")
fillet5.Base = (fillet4, edges_at(fillet4, [
    (-76.2, 36.83, -200.66),
    (0, 36.83, -200.66),
    (0, 36.83, -2.54),
    (-76.2, 36.83, -2.54),
    (-76.2, 18.415, 0),
    (0, 18.415, 0),
    (-76.2, 18.415, -203.2),
    (0, 18.415, -203.2),
    (-53.183, 64.008, -174.775),
    (-16.099, 64.008, -174.775),
    (-38.1, 36.83, -203.2),
    (-38.1, 36.83, 0),
]))
fillet5.Radius = Q("0.125 in")
doc.recompute()

fillet6 = body.newObject("PartDesign::Fillet", "Fillet005")
fillet6.Base = (fillet5, edges_at(fillet5, [(-52.709, 30.48, -128.179), (-23.084, 30.48, -128.179)]))
fillet6.Radius = Q("0.125 in")

# Sketch on XY plane
sketch8 = body.newObject("Sketcher::SketchObject", "Sketch007")
sketch8.AttachmentSupport = (doc.getObject("XY_Plane"), [""])
sketch8.MapMode = "FlatFace"
sketch8.AttachmentOffset = App.Placement(App.Vector(0, 0, -7.0059055 * 25.4), App.Rotation())
sketch8.addGeometry(Part.LineSegment(App.Vector(-26.9, 55.3, 0), App.Vector(-29.3, 59.3, 0)), False)
sketch8.addGeometry(Part.LineSegment(App.Vector(-29.3, 59.3, 0), App.Vector(-26.9, 63.4, 0)), False)
sketch8.addGeometry(Part.LineSegment(App.Vector(-26.9, 63.4, 0), App.Vector(-22.3, 63.4, 0)), False)
sketch8.addGeometry(Part.LineSegment(App.Vector(-22.3, 63.4, 0), App.Vector(-20, 59.3, 0)), False)
sketch8.addGeometry(Part.LineSegment(App.Vector(-20, 59.3, 0), App.Vector(-22.3, 55.3, 0)), False)
sketch8.addGeometry(Part.LineSegment(App.Vector(-22.3, 55.3, 0), App.Vector(-26.9, 55.3, 0)), False)
sketch8.addGeometry(Part.LineSegment(App.Vector(-36.9, 55.3, 0), App.Vector(-39.3, 59.3, 0)), False)
sketch8.addGeometry(Part.LineSegment(App.Vector(-39.3, 59.3, 0), App.Vector(-36.9, 63.4, 0)), False)
sketch8.addGeometry(Part.LineSegment(App.Vector(-36.9, 63.4, 0), App.Vector(-32.3, 63.4, 0)), False)
sketch8.addGeometry(Part.LineSegment(App.Vector(-32.3, 63.4, 0), App.Vector(-30, 59.3, 0)), False)
sketch8.addGeometry(Part.LineSegment(App.Vector(-30, 59.3, 0), App.Vector(-32.3, 55.3, 0)), False)
sketch8.addGeometry(Part.LineSegment(App.Vector(-32.3, 55.3, 0), App.Vector(-36.9, 55.3, 0)), False)
sketch8.addConstraint(Sketcher.Constraint("Coincident", 0, 2, 1, 1))
sketch8.addConstraint(Sketcher.Constraint("Coincident", 1, 2, 2, 1))
sketch8.addConstraint(Sketcher.Constraint("Coincident", 2, 2, 3, 1))
sketch8.addConstraint(Sketcher.Constraint("Coincident", 3, 2, 4, 1))
sketch8.addConstraint(Sketcher.Constraint("Coincident", 4, 2, 5, 1))
sketch8.addConstraint(Sketcher.Constraint("Coincident", 5, 2, 0, 1))
sketch8.addConstraint(Sketcher.Constraint("Coincident", 6, 2, 7, 1))
sketch8.addConstraint(Sketcher.Constraint("Coincident", 7, 2, 8, 1))
sketch8.addConstraint(Sketcher.Constraint("Coincident", 8, 2, 9, 1))
sketch8.addConstraint(Sketcher.Constraint("Coincident", 9, 2, 10, 1))
sketch8.addConstraint(Sketcher.Constraint("Coincident", 10, 2, 11, 1))
sketch8.addConstraint(Sketcher.Constraint("Coincident", 11, 2, 6, 1))
sketch8.addConstraint(Sketcher.Constraint("Horizontal", 2))
sketch8.addConstraint(Sketcher.Constraint("Horizontal", 5))
sketch8.addConstraint(Sketcher.Constraint("Horizontal", 8))
sketch8.addConstraint(Sketcher.Constraint("Horizontal", 11))
sketch8.addConstraint(Sketcher.Constraint("Parallel", 0, 3))
sketch8.addConstraint(Sketcher.Constraint("Parallel", 1, 4))
sketch8.addConstraint(Sketcher.Constraint("Parallel", 3, 6))
sketch8.addConstraint(Sketcher.Constraint("Parallel", 4, 7))
sketch8.addConstraint(Sketcher.Constraint("Parallel", 6, 9))
sketch8.addConstraint(Sketcher.Constraint("Parallel", 7, 10))
sketch8.addConstraint(Sketcher.Constraint("Horizontal", 0, 2, 3, 2))
sketch8.addConstraint(Sketcher.Constraint("Horizontal", 3, 2, 6, 2))
sketch8.addConstraint(Sketcher.Constraint("Horizontal", 2, 2, 7, 2))
sketch8.addConstraint(Sketcher.Constraint("Horizontal", 6, 2, 9, 2))
sketch8.addConstraint(Sketcher.Constraint("Horizontal", 5, 2, 10, 2))
sketch8.addConstraint(Sketcher.Constraint("Vertical", 2, 2, 4, 2))
sketch8.addConstraint(Sketcher.Constraint("Vertical", 1, 2, 5, 2))
sketch8.addConstraint(Sketcher.Constraint("Equal", 5, 8))
sketch8.addConstraint(Sketcher.Constraint("Angle", 0, Q("120.001 deg")))
sketch8.addConstraint(Sketcher.Constraint("DistanceX", 0, 2, 3, 2, Q("0.367 in")))
sketch8.addConstraint(Sketcher.Constraint("DistanceX", 2, 1, 2, 2, Q("0.1835 in")))
sketch8.addConstraint(Sketcher.Constraint("DistanceX", 1, 2, -1, 1, Q("1.0609 in")))
sketch8.addConstraint(Sketcher.Constraint("DistanceY", -1, 1, 1, 2, Q("2.4948 in")))
sketch8.addConstraint(Sketcher.Constraint("DistanceX", 7, 2, -1, 1, Q("1.4546 in")))
pocket5 = body.newObject("PartDesign::Pocket", "Pocket004")
pocket5.Profile = sketch8
pocket5.Length = Q("0.172 in")
pocket5.Reversed = True

doc.recompute()
